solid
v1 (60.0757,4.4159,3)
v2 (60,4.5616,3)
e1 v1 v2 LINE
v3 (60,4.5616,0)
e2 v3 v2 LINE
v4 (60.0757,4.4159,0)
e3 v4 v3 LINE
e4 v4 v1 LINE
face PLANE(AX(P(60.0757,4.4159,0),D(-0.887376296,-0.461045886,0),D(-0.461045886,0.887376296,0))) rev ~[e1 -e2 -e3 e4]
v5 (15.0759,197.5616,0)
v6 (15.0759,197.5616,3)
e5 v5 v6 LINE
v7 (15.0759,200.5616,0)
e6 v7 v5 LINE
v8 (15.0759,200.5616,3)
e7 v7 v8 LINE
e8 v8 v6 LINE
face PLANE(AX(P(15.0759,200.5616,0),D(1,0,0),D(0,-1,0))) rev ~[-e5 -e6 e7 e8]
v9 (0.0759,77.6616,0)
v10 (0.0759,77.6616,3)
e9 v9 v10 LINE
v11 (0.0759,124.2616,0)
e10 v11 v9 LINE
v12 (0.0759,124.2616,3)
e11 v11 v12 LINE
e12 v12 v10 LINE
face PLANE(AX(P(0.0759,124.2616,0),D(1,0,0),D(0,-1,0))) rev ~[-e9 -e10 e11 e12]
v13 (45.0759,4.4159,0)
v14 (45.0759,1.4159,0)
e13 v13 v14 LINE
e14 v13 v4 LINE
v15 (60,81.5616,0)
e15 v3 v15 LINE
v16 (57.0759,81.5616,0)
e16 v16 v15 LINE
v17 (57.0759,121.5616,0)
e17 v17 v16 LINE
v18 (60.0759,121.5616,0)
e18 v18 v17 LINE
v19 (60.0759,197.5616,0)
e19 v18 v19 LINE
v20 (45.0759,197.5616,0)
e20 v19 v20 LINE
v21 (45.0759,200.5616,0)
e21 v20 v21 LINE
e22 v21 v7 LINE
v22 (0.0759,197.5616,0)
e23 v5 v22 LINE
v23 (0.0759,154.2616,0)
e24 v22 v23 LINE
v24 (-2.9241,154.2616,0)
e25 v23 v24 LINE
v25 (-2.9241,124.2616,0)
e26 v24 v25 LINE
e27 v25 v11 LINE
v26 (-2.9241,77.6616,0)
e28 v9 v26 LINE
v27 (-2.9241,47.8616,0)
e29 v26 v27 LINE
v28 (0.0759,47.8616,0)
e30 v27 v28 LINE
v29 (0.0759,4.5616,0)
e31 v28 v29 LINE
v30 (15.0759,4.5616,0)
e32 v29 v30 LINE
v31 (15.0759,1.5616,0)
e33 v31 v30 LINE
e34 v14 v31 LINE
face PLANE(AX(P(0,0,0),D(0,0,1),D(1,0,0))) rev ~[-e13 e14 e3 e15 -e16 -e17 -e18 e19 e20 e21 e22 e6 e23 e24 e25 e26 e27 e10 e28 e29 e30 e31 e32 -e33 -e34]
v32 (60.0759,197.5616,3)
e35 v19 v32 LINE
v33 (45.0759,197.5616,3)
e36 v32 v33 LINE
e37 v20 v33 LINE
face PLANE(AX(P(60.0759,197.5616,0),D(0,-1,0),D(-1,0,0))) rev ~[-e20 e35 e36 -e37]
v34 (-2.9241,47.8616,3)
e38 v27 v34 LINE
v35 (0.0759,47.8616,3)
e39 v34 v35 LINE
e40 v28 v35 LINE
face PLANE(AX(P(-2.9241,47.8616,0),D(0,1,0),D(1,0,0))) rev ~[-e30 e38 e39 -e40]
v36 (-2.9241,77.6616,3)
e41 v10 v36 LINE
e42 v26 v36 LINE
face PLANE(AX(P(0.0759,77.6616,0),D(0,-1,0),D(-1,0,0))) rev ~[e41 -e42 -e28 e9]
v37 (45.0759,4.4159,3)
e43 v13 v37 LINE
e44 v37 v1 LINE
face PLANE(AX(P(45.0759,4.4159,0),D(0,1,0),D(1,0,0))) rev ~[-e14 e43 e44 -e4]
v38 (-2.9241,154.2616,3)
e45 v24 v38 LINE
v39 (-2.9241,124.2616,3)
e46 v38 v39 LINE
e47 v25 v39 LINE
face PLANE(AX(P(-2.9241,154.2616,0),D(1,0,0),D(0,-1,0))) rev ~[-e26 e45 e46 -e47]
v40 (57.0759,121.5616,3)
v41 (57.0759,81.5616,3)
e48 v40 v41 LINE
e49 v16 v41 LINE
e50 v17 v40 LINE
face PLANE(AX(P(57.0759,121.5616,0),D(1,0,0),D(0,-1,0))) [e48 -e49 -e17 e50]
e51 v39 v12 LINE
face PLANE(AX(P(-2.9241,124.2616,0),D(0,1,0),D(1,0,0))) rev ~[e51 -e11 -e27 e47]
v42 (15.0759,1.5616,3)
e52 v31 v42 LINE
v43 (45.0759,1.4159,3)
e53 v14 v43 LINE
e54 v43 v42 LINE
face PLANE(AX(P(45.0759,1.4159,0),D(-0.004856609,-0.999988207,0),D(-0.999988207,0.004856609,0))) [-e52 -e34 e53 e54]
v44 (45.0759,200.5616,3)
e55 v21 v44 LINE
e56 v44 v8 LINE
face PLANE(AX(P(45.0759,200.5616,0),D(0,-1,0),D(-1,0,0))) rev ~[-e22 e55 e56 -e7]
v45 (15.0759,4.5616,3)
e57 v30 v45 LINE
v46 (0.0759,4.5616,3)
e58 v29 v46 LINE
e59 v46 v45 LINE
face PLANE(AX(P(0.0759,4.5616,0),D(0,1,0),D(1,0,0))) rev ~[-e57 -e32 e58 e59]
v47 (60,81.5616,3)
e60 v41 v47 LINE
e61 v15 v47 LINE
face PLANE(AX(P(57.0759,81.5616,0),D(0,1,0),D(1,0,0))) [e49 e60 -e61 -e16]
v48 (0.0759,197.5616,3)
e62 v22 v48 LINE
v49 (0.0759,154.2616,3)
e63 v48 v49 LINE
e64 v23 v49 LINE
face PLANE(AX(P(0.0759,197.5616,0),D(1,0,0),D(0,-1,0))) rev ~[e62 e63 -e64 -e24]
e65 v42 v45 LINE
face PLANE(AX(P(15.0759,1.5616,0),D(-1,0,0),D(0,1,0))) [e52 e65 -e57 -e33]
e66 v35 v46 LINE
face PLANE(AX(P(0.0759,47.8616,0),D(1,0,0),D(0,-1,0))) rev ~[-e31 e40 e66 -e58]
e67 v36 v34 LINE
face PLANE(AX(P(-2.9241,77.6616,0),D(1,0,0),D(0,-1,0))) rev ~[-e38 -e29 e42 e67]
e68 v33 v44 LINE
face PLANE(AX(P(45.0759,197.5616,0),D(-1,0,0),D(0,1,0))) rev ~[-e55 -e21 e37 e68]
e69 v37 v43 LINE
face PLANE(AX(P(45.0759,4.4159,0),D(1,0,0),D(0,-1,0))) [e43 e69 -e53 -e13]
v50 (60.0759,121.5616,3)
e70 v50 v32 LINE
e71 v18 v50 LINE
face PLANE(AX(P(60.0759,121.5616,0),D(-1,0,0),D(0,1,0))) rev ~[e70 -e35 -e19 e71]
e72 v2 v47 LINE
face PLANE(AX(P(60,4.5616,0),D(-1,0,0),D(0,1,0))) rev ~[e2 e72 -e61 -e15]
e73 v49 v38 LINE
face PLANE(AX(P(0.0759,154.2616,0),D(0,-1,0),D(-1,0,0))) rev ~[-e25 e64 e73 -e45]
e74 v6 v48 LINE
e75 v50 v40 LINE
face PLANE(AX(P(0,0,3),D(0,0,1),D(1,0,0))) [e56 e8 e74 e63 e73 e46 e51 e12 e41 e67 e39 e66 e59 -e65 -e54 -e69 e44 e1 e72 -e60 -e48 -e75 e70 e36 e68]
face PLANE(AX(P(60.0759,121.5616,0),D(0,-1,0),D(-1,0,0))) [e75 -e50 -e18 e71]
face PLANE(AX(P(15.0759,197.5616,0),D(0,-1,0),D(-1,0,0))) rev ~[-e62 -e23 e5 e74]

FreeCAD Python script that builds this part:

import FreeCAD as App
import Part
import Sketcher


def add_polygon(sketch, points):
    """Adds a closed chain of lines whose ends are joined by coincident constraints."""
    first, n = sketch.GeometryCount, len(points)
    for a, b in zip(points, points[1:] + points[:1]):
        sketch.addGeometry(Part.LineSegment(App.Vector(*a, 0), App.Vector(*b, 0)), False)
    for i in range(n):
        sketch.addConstraint(Sketcher.Constraint("Coincident", first + i, 2, first + (i + 1) % n, 1))

doc = App.newDocument("Part")
body = doc.addObject("PartDesign::Body", "Body")

sketch1 = body.newObject("Sketcher::SketchObject", "Sketch")
sketch1.AttachmentSupport = (doc.getObject("XY_Plane"), [""])
sketch1.MapMode = "FlatFace"
add_polygon(sketch1, [(60.0759, 121.5616), (60.0759, 197.5616), (45.0759, 197.5616), (45.0759, 200.5616), (15.0759, 200.5616), (15.0759, 197.5616), (0.0759, 197.5616), (0.0759, 154.2616), (-2.9241, 154.2616), (-2.9241, 124.2616), (0.0759, 124.2616), (0.0759, 77.6616), (-2.9241, 77.6616), (-2.9241, 47.8616), (0.0759, 47.8616), (0.0759, 4.5616), (15.0759, 4.5616), (15.0759, 1.5616), (45.0759, 1.4159), (45.0759, 4.4159), (60.0757, 4.4159), (60, 4.5616), (60, 81.5616), (57.0759, 81.5616), (57.0759, 121.5616)])
sketch1.addConstraint([
    Sketcher.Constraint("Vertical", 0),
    Sketcher.Constraint("Horizontal", 1),
    Sketcher.Constraint("Vertical", 2),
    Sketcher.Constraint("Horizontal", 3),
    Sketcher.Constraint("Vertical", 4),
    Sketcher.Constraint("Horizontal", 5),
    Sketcher.Constraint("Vertical", 6),
    Sketcher.Constraint("Horizontal", 7),
    Sketcher.Constraint("Vertical", 8),
    Sketcher.Constraint("Horizontal", 9),
    Sketcher.Constraint("Vertical", 10),
    Sketcher.Constraint("Horizontal", 11),
    Sketcher.Constraint("Vertical", 12),
    Sketcher.Constraint("Horizontal", 13),
    Sketcher.Constraint("Vertical", 14),
    Sketcher.Constraint("Horizontal", 15),
    Sketcher.Constraint("Vertical", 16),
    Sketcher.Constraint("Vertical", 18),
    Sketcher.Constraint("Horizontal", 19),
    Sketcher.Constraint("Vertical", 21),
    Sketcher.Constraint("Horizontal", 22),
    Sketcher.Constraint("Vertical", 23),
    Sketcher.Constraint("Horizontal", 24),
    Sketcher.Constraint("Horizontal", 1, 2, 4, 2),
    Sketcher.Constraint("Horizontal", 15, 2, 20, 2),
    Sketcher.Constraint("Vertical", 6, 2, 9, 2),
    Sketcher.Constraint("Vertical", 8, 2, 11, 2),
    Sketcher.Constraint("Vertical", 10, 2, 13, 2),
    Sketcher.Constraint("Vertical", 4, 2, 15, 2),
    Sketcher.Constraint("Vertical", 2, 2, 17, 2),
    Sketcher.Constraint("Vertical", 0, 2, 19, 2),
    Sketcher.Constraint("Equal", 1, 5),
    Sketcher.Constraint("Equal", 13, 24),
    Sketcher.Constraint("Equal", 24, 2),
    Sketcher.Constraint("Equal", 3, 8),
    Sketcher.Constraint("Equal", 6, 14),
    Sketcher.Constraint("Equal", 4, 16),
    Sketcher.Constraint("Equal", 16, 18),
    Sketcher.Constraint("DistanceX", 1, 2, 1, 1, 15.0),
    Sketcher.Constraint("DistanceX", 3, 2, 3, 1, 30.0),
    Sketcher.Constraint("DistanceX", 7, 2, 7, 1, 3.0),
    Sketcher.Constraint("DistanceY", 0, 1, 0, 2, 76.0),
    Sketcher.Constraint("DistanceY", 21, 1, 21, 2, 77.0),
    Sketcher.Constraint("DistanceY", 23, 1, 23, 2, 40.0),
    Sketcher.Constraint("DistanceY", 6, 2, 6, 1, 43.3),
    Sketcher.Constraint("DistanceY", 10, 2, 10, 1, 46.6),
    Sketcher.Constraint("DistanceX", -1, 1, 20, 2, 60.0),
    Sketcher.Constraint("DistanceX", 22, 2, 22, 1, 2.924),
    Sketcher.Constraint("DistanceY", -1, 1, 17, 2, 1.416),
    Sketcher.Constraint("Distance", 20, 0.1642),
])
pad1 = body.newObject("PartDesign::Pad", "Pad")
pad1.Profile = sketch1
pad1.Length = 3

doc.recompute()
